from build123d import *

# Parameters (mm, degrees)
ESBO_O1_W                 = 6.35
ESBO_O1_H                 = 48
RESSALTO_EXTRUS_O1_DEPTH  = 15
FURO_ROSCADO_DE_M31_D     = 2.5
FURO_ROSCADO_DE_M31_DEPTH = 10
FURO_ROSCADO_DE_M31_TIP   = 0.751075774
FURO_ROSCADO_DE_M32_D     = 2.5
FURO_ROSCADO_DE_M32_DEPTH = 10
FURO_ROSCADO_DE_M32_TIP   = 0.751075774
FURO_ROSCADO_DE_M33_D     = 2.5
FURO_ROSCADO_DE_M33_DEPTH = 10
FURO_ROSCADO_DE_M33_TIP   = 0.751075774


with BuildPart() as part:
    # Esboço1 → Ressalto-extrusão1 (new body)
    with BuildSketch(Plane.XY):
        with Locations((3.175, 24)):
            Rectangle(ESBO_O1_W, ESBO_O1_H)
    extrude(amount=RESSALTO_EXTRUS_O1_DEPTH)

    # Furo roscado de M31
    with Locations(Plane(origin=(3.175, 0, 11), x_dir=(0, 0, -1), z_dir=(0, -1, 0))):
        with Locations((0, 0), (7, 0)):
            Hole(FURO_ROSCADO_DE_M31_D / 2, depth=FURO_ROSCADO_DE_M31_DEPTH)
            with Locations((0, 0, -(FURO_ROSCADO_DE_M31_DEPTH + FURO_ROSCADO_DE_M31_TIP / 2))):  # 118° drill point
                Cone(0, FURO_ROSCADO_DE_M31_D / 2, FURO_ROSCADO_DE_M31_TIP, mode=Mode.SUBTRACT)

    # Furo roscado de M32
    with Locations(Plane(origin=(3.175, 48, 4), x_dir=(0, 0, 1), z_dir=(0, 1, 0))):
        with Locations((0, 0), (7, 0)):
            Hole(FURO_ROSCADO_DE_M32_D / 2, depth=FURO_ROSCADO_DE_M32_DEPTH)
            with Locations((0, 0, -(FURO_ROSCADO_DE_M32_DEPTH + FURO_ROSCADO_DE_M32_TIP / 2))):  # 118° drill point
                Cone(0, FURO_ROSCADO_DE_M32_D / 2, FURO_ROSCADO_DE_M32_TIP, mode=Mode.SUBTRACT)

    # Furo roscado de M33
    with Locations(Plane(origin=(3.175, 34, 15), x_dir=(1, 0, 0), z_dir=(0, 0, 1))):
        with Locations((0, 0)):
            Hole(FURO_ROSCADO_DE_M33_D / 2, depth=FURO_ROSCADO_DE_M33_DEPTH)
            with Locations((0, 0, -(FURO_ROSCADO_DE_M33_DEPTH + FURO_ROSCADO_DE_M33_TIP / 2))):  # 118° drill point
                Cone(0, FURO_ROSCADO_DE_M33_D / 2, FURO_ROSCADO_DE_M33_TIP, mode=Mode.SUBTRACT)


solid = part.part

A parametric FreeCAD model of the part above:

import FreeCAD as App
import Part
import Sketcher
Q = App.Units.Quantity

doc = App.newDocument("Part")
body = doc.addObject("PartDesign::Body", "Body")

sketch1 = doc.addObject("Sketcher::SketchObject", "Sketch")
body.addObject(sketch1)
sketch1.AttachmentSupport = (doc.XY_Plane, [""])
sketch1.MapMode = "FlatFace"
sketch1.addGeometry(Part.LineSegment(App.Vector(0, 48, 0), App.Vector(0, 0, 0)), False)
sketch1.addGeometry(Part.LineSegment(App.Vector(0, 0, 0), App.Vector(6, 0, 0)), False)
sketch1.addGeometry(Part.LineSegment(App.Vector(6, 0, 0), App.Vector(6, 48, 0)), False)
sketch1.addGeometry(Part.LineSegment(App.Vector(6, 48, 0), App.Vector(0, 48, 0)), False)
sketch1.addConstraint(Sketcher.Constraint("Coincident", 0, 2, 1, 1))
sketch1.addConstraint(Sketcher.Constraint("Coincident", 1, 2, 2, 1))
sketch1.addConstraint(Sketcher.Constraint("Coincident", 2, 2, 3, 1))
sketch1.addConstraint(Sketcher.Constraint("Coincident", 3, 2, 0, 1))
sketch1.addConstraint(Sketcher.Constraint("Vertical", 0))
sketch1.addConstraint(Sketcher.Constraint("Horizontal", 1))
sketch1.addConstraint(Sketcher.Constraint("Vertical", 2))
sketch1.addConstraint(Sketcher.Constraint("Horizontal", 3))
sketch1.addConstraint(Sketcher.Constraint("Coincident", 0, 2, -1, 1))
sketch1.addConstraint(Sketcher.Constraint("DistanceY", 0, 2, 0, 1, Q("48 mm")))
sketch1.addConstraint(Sketcher.Constraint("DistanceX", 1, 1, 1, 2, Q("6.35 mm")))
pad1 = doc.addObject("PartDesign::Pad", "Pad")
body.addObject(pad1)
pad1.Profile = sketch1
pad1.Length = 15

sketch2 = doc.addObject("Sketcher::SketchObject", "Sketch001")
body.addObject(sketch2)
sketch2.AttachmentSupport = (doc.XZ_Plane, [""])
sketch2.MapMode = "FlatFace"
sketch2.addGeometry(Part.Circle(App.Vector(3.2, 11, 0), App.Vector(0, 0, 1), 1.2), False)
sketch2.addGeometry(Part.Circle(App.Vector(3.2, 4, 0), App.Vector(0, 0, 1), 1.2), False)
sketch2.addConstraint(Sketcher.Constraint("Equal", 0, 1))
sketch2.addConstraint(Sketcher.Constraint("Vertical", 0, 3, 1, 3))
sketch2.addConstraint(Sketcher.Constraint("Diameter", 0, Q("2.5 mm")))
sketch2.addConstraint(Sketcher.Constraint("DistanceY", -1, 1, 0, 3, Q("11 mm")))
sketch2.addConstraint(Sketcher.Constraint("DistanceY", -1, 1, 1, 3, Q("4 mm")))
sketch2.addConstraint(Sketcher.Constraint("DistanceX", -1, 1, 0, 3, Q("3.175 mm")))
doc.recompute()
hole = doc.addObject("PartDesign::Hole", "Hole")
body.addObject(hole)
hole.Profile = sketch2
hole.ThreadType = "None"
hole.Diameter = 2.5
hole.DepthType = "Dimension"
hole.Depth = 10
hole.DrillPoint = "Angled"
hole.DrillPointAngle = 118

sketch3 = doc.addObject("Sketcher::SketchObject", "Sketch002")
body.addObject(sketch3)
sketch3.AttachmentSupport = (doc.XZ_Plane, [""])
sketch3.MapMode = "FlatFace"
sketch3.AttachmentOffset = App.Placement(App.Vector(0, 0, -48), App.Rotation())
sketch3.addGeometry(Part.Circle(App.Vector(3.2, 4, 0), App.Vector(0, 0, 1), 1.2), False)
sketch3.addGeometry(Part.Circle(App.Vector(3.2, 11, 0), App.Vector(0, 0, 1), 1.2), False)
sketch3.addConstraint(Sketcher.Constraint("Equal", 0, 1))
sketch3.addConstraint(Sketcher.Constraint("Vertical", 0, 3, 1, 3))
sketch3.addConstraint(Sketcher.Constraint("Diameter", 0, Q("2.5 mm")))
sketch3.addConstraint(Sketcher.Constraint("DistanceY", -1, 1, 0, 3, Q("4 mm")))
sketch3.addConstraint(Sketcher.Constraint("DistanceY", -1, 1, 1, 3, Q("11 mm")))
sketch3.addConstraint(Sketcher.Constraint("DistanceX", -1, 1, 0, 3, Q("3.175 mm")))
doc.recompute()
hole2 = doc.addObject("PartDesign::Hole", "Hole001")
body.addObject(hole2)
hole2.Profile = sketch3
hole2.ThreadType = "None"
hole2.Diameter = 2.5
hole2.DepthType = "Dimension"
hole2.Depth = 10
hole2.DrillPoint = "Angled"
hole2.DrillPointAngle = 118
hole2.Reversed = True

sketch4 = doc.addObject("Sketcher::SketchObject", "Sketch003")
body.addObject(sketch4)
sketch4.AttachmentSupport = (doc.XY_Plane, [""])
sketch4.MapMode = "FlatFace"
sketch4.AttachmentOffset = App.Placement(App.Vector(0, 0, 15), App.Rotation())
sketch4.addGeometry(Part.Circle(App.Vector(3.2, 34, 0), App.Vector(0, 0, 1), 1.2), False)
sketch4.addConstraint(Sketcher.Constraint("Diameter", 0, Q("2.5 mm")))
sketch4.addConstraint(Sketcher.Constraint("DistanceY", -1, 1, 0, 3, Q("34 mm")))
sketch4.addConstraint(Sketcher.Constraint("DistanceX", -1, 1, 0, 3, Q("3.175 mm")))
doc.recompute()
hole3 = doc.addObject("PartDesign::Hole", "Hole002")
body.addObject(hole3)
hole3.Profile = sketch4
hole3.ThreadType = "None"
hole3.Diameter = 2.5
hole3.DepthType = "Dimension"
hole3.Depth = 10
hole3.DrillPoint = "Angled"
hole3.DrillPointAngle = 118

doc.recompute()
